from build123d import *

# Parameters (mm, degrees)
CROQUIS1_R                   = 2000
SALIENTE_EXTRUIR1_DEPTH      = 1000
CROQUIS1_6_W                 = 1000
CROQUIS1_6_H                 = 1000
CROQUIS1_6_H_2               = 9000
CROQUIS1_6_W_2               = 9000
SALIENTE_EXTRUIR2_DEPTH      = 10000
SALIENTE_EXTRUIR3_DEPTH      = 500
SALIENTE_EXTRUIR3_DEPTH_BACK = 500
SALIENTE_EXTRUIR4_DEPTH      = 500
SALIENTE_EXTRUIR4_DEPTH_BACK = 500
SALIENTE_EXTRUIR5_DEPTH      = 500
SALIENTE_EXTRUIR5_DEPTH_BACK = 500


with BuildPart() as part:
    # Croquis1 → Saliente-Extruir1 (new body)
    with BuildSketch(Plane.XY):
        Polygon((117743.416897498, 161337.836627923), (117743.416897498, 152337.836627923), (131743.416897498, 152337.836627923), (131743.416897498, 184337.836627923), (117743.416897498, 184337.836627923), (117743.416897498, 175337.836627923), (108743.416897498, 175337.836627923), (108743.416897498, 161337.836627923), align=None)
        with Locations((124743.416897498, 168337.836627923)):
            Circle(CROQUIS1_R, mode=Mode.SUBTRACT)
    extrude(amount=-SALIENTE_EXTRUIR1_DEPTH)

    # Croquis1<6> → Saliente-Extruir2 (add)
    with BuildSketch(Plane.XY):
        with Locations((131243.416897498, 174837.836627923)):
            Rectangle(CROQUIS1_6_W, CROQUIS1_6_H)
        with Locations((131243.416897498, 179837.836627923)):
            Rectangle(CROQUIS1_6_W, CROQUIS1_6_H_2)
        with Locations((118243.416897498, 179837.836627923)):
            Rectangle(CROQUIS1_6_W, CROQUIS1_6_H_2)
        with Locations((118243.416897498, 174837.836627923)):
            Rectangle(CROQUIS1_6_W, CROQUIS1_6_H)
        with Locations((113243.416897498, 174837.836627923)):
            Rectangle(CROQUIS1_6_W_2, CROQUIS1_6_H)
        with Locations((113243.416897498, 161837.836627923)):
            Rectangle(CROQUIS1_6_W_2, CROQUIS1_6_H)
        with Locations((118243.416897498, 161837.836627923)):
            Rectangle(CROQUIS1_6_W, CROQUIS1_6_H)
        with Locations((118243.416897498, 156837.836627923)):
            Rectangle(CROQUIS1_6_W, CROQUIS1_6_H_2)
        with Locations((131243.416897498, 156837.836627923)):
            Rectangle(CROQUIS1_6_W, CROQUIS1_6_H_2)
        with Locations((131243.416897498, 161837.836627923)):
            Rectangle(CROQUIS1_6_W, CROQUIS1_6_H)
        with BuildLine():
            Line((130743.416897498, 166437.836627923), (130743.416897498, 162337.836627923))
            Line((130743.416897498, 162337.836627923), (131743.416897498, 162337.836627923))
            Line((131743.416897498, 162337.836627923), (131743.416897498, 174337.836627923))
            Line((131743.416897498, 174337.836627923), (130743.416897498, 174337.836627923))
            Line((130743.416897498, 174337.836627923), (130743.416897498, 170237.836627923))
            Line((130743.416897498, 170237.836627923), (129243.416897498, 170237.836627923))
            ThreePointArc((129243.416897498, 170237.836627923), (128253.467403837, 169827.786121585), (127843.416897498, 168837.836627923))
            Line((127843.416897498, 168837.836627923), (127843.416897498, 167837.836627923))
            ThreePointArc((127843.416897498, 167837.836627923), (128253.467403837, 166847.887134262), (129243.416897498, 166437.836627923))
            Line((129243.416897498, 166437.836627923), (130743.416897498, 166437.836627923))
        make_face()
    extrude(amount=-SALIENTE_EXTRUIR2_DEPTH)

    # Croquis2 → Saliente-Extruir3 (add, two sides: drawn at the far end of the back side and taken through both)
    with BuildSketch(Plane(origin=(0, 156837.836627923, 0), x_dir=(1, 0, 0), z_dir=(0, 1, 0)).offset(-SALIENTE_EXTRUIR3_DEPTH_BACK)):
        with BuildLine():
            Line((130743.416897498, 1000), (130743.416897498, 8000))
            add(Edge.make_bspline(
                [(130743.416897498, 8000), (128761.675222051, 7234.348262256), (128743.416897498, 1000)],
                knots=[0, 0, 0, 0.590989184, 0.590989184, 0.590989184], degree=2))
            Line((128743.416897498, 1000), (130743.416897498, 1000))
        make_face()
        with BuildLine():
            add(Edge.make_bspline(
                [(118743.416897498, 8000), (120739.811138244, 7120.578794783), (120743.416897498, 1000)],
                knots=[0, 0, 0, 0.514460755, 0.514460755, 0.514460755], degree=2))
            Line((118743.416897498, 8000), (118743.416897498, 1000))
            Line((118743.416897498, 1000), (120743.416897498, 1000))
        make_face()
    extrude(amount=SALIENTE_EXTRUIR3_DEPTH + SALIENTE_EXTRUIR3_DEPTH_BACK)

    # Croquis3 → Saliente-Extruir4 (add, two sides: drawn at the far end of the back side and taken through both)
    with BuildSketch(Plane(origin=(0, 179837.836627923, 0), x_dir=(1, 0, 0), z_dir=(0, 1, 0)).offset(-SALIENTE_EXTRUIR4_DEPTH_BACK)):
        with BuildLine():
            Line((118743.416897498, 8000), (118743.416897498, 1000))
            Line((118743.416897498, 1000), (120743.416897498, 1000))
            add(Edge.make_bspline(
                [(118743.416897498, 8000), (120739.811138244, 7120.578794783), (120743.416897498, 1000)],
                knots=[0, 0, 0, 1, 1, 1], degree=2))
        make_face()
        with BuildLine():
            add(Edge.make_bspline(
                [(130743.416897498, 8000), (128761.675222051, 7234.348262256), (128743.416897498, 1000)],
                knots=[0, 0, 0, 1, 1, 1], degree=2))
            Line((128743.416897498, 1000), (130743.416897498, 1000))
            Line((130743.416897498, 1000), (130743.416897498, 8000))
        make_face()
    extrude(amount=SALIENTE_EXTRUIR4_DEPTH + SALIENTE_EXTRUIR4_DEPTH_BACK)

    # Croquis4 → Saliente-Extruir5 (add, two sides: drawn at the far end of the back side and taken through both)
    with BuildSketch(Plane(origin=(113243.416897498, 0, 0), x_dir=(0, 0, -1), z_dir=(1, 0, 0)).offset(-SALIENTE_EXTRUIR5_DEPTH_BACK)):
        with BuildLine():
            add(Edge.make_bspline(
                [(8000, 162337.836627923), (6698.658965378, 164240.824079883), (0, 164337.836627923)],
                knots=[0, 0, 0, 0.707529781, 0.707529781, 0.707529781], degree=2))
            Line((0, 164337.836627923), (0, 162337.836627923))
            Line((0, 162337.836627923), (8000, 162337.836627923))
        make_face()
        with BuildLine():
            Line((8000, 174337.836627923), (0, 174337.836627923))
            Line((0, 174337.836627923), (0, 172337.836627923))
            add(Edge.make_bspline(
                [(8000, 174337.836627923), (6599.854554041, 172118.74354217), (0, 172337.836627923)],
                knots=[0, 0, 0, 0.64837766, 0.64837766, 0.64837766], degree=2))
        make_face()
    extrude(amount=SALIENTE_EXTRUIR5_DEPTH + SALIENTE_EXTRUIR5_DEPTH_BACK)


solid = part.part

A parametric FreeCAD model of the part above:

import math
import FreeCAD as App
import Part
import Sketcher
Q = App.Units.Quantity

doc = App.newDocument("Part")
params = doc.addObject("Spreadsheet::Sheet", "Params")
for row, (alias, value) in enumerate([
    ("sketch1_diameter", "4000 mm"),
    ("sketch1_width", "14000 mm"),
    ("sketch1_width2", "9000 mm"),
    ("pad1_length", "1000 mm"),
    ("sketch2_radius", "1400 mm"),
    ("sketch2_width", "1000 mm"),
    ("sketch2_width2", "1500 mm"),
    ("sketch2_width3", "9000 mm"),
    ("sketch2_height", "14100 mm"),
    ("pad2_length", "10000 mm"),
    ("pad3_length", "500 mm"),
    ("pad3_length2", "500 mm"),
    ("pad4_length", "500 mm"),
    ("pad4_length2", "500 mm"),
    ("pad5_length", "500 mm"),
    ("pad5_length2", "500 mm"),
], start=1):
    params.set(f"A{row}", alias)
    params.set(f"B{row}", "=" + value)
    params.setAlias(f"B{row}", alias)

body = doc.addObject("PartDesign::Body", "Body")

# Sketch on XY plane
sketch1 = body.newObject("Sketcher::SketchObject", "Sketch")
sketch1.AttachmentSupport = (doc.getObject("XY_Plane"), [""])
sketch1.MapMode = "FlatFace"
sketch1.addGeometry([
    Part.LineSegment(App.Vector(117743.416897, 161337.836628, 0), App.Vector(117743.416897, 152337.836628, 0)),  # 0
    Part.LineSegment(App.Vector(117743.416897, 152337.836628, 0), App.Vector(131743.416897, 152337.836628, 0)),  # 1
    Part.LineSegment(App.Vector(131743.416897, 152337.836628, 0), App.Vector(131743.416897, 184337.836628, 0)),  # 2
    Part.LineSegment(App.Vector(131743.416897, 184337.836628, 0), App.Vector(117743.416897, 184337.836628, 0)),  # 3
    Part.LineSegment(App.Vector(117743.416897, 184337.836628, 0), App.Vector(117743.416897, 175337.836628, 0)),  # 4
    Part.LineSegment(App.Vector(117743.416897, 175337.836628, 0), App.Vector(108743.416897, 175337.836628, 0)),  # 5
    Part.LineSegment(App.Vector(108743.416897, 175337.836628, 0), App.Vector(108743.416897, 161337.836628, 0)),  # 6
    Part.LineSegment(App.Vector(108743.416897, 161337.836628, 0), App.Vector(117743.416897, 161337.836628, 0)),  # 7
    Part.Circle(App.Vector(124743.416897, 168337.836628, 0), App.Vector(0, 0, 1), 2000),  # 8
], False)
sketch1.addConstraint([
    Sketcher.Constraint("Coincident", 0, 2, 1, 1),
    Sketcher.Constraint("Coincident", 1, 2, 2, 1),
    Sketcher.Constraint("Coincident", 2, 2, 3, 1),
    Sketcher.Constraint("Coincident", 3, 2, 4, 1),
    Sketcher.Constraint("Coincident", 4, 2, 5, 1),
    Sketcher.Constraint("Coincident", 5, 2, 6, 1),
    Sketcher.Constraint("Coincident", 6, 2, 7, 1),
    Sketcher.Constraint("Coincident", 7, 2, 0, 1),
    Sketcher.Constraint("Vertical", 0),
    Sketcher.Constraint("Horizontal", 1),
    Sketcher.Constraint("Vertical", 2),
    Sketcher.Constraint("Horizontal", 3),
    Sketcher.Constraint("Vertical", 4),
    Sketcher.Constraint("Horizontal", 5),
    Sketcher.Constraint("Vertical", 6),
    Sketcher.Constraint("Horizontal", 7),
    Sketcher.Constraint("Vertical", 0, 2, 3, 2),
    Sketcher.Constraint("Equal", 7, 0),
    Sketcher.Constraint("Equal", 0, 4),
    Sketcher.Constraint("Equal", 3, 6),
    Sketcher.Constraint("Diameter", 8, Q("4000 mm")),
    Sketcher.Constraint("DistanceX", 1, 1, 1, 2, Q("14000 mm")),
    Sketcher.Constraint("DistanceX", 5, 2, 5, 1, Q("9000 mm")),
    Sketcher.Constraint("DistanceX", 0, 2, 8, 3, Q("7000 mm")),
    Sketcher.Constraint("DistanceY", 0, 2, 8, 3, Q("16000 mm")),
    Sketcher.Constraint("DistanceX", -1, 1, 8, 3, Q("124743.416897 mm")),
    Sketcher.Constraint("DistanceY", -1, 1, 8, 3, Q("168337.836628 mm")),
])
sketch1.setExpression("Constraints[20]", "Params.sketch1_diameter")
sketch1.setExpression("Constraints[21]", "Params.sketch1_width")
sketch1.setExpression("Constraints[22]", "Params.sketch1_width2")
pad1 = body.newObject("PartDesign::Pad", "Pad")
pad1.Profile = sketch1
pad1.setExpression("Length", "Params.pad1_length")
pad1.Reversed = True

# Sketch on XY plane
sketch2 = body.newObject("Sketcher::SketchObject", "Sketch001")
sketch2.AttachmentSupport = (doc.getObject("XY_Plane"), [""])
sketch2.MapMode = "FlatFace"
sketch2.addGeometry([
    Part.LineSegment(App.Vector(131743.416897, 184337.836628, 0), App.Vector(130743.416897, 184337.836628, 0)),  # 0
    Part.LineSegment(App.Vector(130743.416897, 184337.836628, 0), App.Vector(130743.416897, 170237.836628, 0)),  # 1
    Part.LineSegment(App.Vector(130743.416897, 170237.836628, 0), App.Vector(129243.416897, 170237.836628, 0)),  # 2
    Part.ArcOfCircle(Part.Circle(App.Vector(129243.416897, 168837.836628, 0), App.Vector(0, 0, 1), 1400), math.radians(90), math.radians(180)),  # 3
    Part.LineSegment(App.Vector(127843.416897, 168837.836628, 0), App.Vector(127843.416897, 167837.836628, 0)),  # 4
    Part.ArcOfCircle(Part.Circle(App.Vector(129243.416897, 167837.836628, 0), App.Vector(0, 0, 1), 1400), math.radians(-180), math.radians(-90)),  # 5
    Part.LineSegment(App.Vector(129243.416897, 166437.836628, 0), App.Vector(130743.416897, 166437.836628, 0)),  # 6
    Part.LineSegment(App.Vector(130743.416897, 166437.836628, 0), App.Vector(130743.416897, 152337.836628, 0)),  # 7
    Part.LineSegment(App.Vector(130743.416897, 152337.836628, 0), App.Vector(131743.416897, 152337.836628, 0)),  # 8
    Part.LineSegment(App.Vector(131743.416897, 152337.836628, 0), App.Vector(131743.416897, 184337.836628, 0)),  # 9
    Part.LineSegment(App.Vector(117743.416897, 184337.836628, 0), App.Vector(117743.416897, 175337.836628, 0)),  # 10
    Part.LineSegment(App.Vector(117743.416897, 175337.836628, 0), App.Vector(108743.416897, 175337.836628, 0)),  # 11
    Part.LineSegment(App.Vector(108743.416897, 175337.836628, 0), App.Vector(108743.416897, 174337.836628, 0)),  # 12
    Part.LineSegment(App.Vector(108743.416897, 174337.836628, 0), App.Vector(118743.416897, 174337.836628, 0)),  # 13
    Part.LineSegment(App.Vector(118743.416897, 174337.836628, 0), App.Vector(118743.416897, 184337.836628, 0)),  # 14
    Part.LineSegment(App.Vector(118743.416897, 184337.836628, 0), App.Vector(117743.416897, 184337.836628, 0)),  # 15
    Part.LineSegment(App.Vector(108743.416897, 162337.836628, 0), App.Vector(108743.416897, 161337.836628, 0)),  # 16
    Part.LineSegment(App.Vector(108743.416897, 161337.836628, 0), App.Vector(117743.416897, 161337.836628, 0)),  # 17
    Part.LineSegment(App.Vector(117743.416897, 161337.836628, 0), App.Vector(117743.416897, 152337.836628, 0)),  # 18
    Part.LineSegment(App.Vector(117743.416897, 152337.836628, 0), App.Vector(118743.416897, 152337.836628, 0)),  # 19
    Part.LineSegment(App.Vector(118743.416897, 152337.836628, 0), App.Vector(118743.416897, 162337.836628, 0)),  # 20
    Part.LineSegment(App.Vector(118743.416897, 162337.836628, 0), App.Vector(108743.416897, 162337.836628, 0)),  # 21
], False)
sketch2.addConstraint([
    Sketcher.Constraint("Coincident", 0, 2, 1, 1),
    Sketcher.Constraint("Coincident", 1, 2, 2, 1),
    Sketcher.Constraint("Coincident", 2, 2, 3, 1),
    Sketcher.Constraint("Coincident", 3, 2, 4, 1),
    Sketcher.Constraint("Coincident", 4, 2, 5, 1),
    Sketcher.Constraint("Coincident", 5, 2, 6, 1),
    Sketcher.Constraint("Coincident", 6, 2, 7, 1),
    Sketcher.Constraint("Coincident", 7, 2, 8, 1),
    Sketcher.Constraint("Coincident", 8, 2, 9, 1),
    Sketcher.Constraint("Coincident", 9, 2, 0, 1),
    Sketcher.Constraint("Coincident", 10, 2, 11, 1),
    Sketcher.Constraint("Coincident", 11, 2, 12, 1),
    Sketcher.Constraint("Coincident", 12, 2, 13, 1),
    Sketcher.Constraint("Coincident", 13, 2, 14, 1),
    Sketcher.Constraint("Coincident", 14, 2, 15, 1),
    Sketcher.Constraint("Coincident", 15, 2, 10, 1),
    Sketcher.Constraint("Coincident", 16, 2, 17, 1),
    Sketcher.Constraint("Coincident", 17, 2, 18, 1),
    Sketcher.Constraint("Coincident", 18, 2, 19, 1),
    Sketcher.Constraint("Coincident", 19, 2, 20, 1),
    Sketcher.Constraint("Coincident", 20, 2, 21, 1),
    Sketcher.Constraint("Coincident", 21, 2, 16, 1),
    Sketcher.Constraint("Horizontal", 0),
    Sketcher.Constraint("Vertical", 1),
    Sketcher.Constraint("Horizontal", 2),
    Sketcher.Constraint("Vertical", 4),
    Sketcher.Constraint("Horizontal", 6),
    Sketcher.Constraint("Vertical", 7),
    Sketcher.Constraint("Horizontal", 8),
    Sketcher.Constraint("Vertical", 9),
    Sketcher.Constraint("Vertical", 10),
    Sketcher.Constraint("Horizontal", 11),
    Sketcher.Constraint("Vertical", 12),
    Sketcher.Constraint("Horizontal", 13),
    Sketcher.Constraint("Vertical", 14),
    Sketcher.Constraint("Horizontal", 15),
    Sketcher.Constraint("Vertical", 16),
    Sketcher.Constraint("Horizontal", 17),
    Sketcher.Constraint("Vertical", 18),
    Sketcher.Constraint("Horizontal", 19),
    Sketcher.Constraint("Vertical", 20),
    Sketcher.Constraint("Horizontal", 21),
    Sketcher.Constraint("Equal", 3, 5),
    Sketcher.Constraint("Horizontal", 5, 3, 4, 2),
    Sketcher.Constraint("Horizontal", 9, 2, 14, 2),
    Sketcher.Constraint("Horizontal", 8, 2, 18, 2),
    Sketcher.Constraint("Vertical", 5, 3, 2, 2),
    Sketcher.Constraint("Vertical", 1, 2, 6, 2),
    Sketcher.Constraint("Vertical", 12, 2, 16, 2),
    Sketcher.Constraint("Vertical", 15, 2, 17, 2),
    Sketcher.Constraint("Vertical", 14, 2, 19, 2),
    Sketcher.Constraint("Equal", 2, 6),
    Sketcher.Constraint("Equal", 8, 15),
    Sketcher.Constraint("Equal", 19, 4),
    Sketcher.Constraint("Equal", 1, 7),
    Sketcher.Constraint("Equal", 17, 10),
    Sketcher.Constraint("Equal", 4, 12),
    Sketcher.Constraint("Equal", 12, 16),
    Sketcher.Constraint("Equal", 10, 18),
    Sketcher.Constraint("Radius", 3, Q("1400 mm")),
    Sketcher.Constraint("DistanceX", 0, 2, 0, 1, Q("1000 mm")),
    Sketcher.Constraint("DistanceX", 2, 2, 2, 1, Q("1500 mm")),
    Sketcher.Constraint("DistanceX", 11, 2, 11, 1, Q("9000 mm")),
    Sketcher.Constraint("DistanceY", 1, 2, 1, 1, Q("14100 mm")),
    Sketcher.Constraint("DistanceY", 9, 1, 9, 2, Q("32000 mm")),
    Sketcher.Constraint("DistanceX", 10, 2, 3, 2, Q("10100 mm")),
    Sketcher.Constraint("DistanceX", -1, 1, 3, 3, Q("129243.416897 mm")),
    Sketcher.Constraint("DistanceY", -1, 1, 3, 3, Q("168837.836628 mm")),
])
sketch2.setExpression("Constraints[59]", "Params.sketch2_radius")
sketch2.setExpression("Constraints[60]", "Params.sketch2_width")
sketch2.setExpression("Constraints[61]", "Params.sketch2_width2")
sketch2.setExpression("Constraints[62]", "Params.sketch2_width3")
sketch2.setExpression("Constraints[63]", "Params.sketch2_height")
pad2 = body.newObject("PartDesign::Pad", "Pad001")
pad2.Profile = sketch2
pad2.setExpression("Length", "Params.pad2_length")
pad2.Reversed = True

# Sketch on XZ plane
sketch3 = body.newObject("Sketcher::SketchObject", "Sketch002")
sketch3.AttachmentSupport = (doc.getObject("XZ_Plane"), [""])
sketch3.MapMode = "FlatFace"
sketch3.AttachmentOffset = App.Placement(App.Vector(0, 0, -156837.836628), App.Rotation())
sketch3.addGeometry([
    Part.LineSegment(App.Vector(130743.416897, -1000, 0), App.Vector(130743.416897, -8000, 0)),  # 0
    Part.BSplineCurve([App.Vector(130743.416897, -8000, 0), App.Vector(128761.675222, -7234.348262, 0), App.Vector(128743.416897, -1000, 0)], [3, 3], [0, 0.590989184], False, 2, [1, 1, 1], False),  # 1
    Part.LineSegment(App.Vector(128743.416897, -1000, 0), App.Vector(130743.416897, -1000, 0)),  # 2
    Part.BSplineCurve([App.Vector(118743.416897, -8000, 0), App.Vector(120739.811138, -7120.578795, 0), App.Vector(120743.416897, -1000, 0)], [3, 3], [0, 0.514460755], False, 2, [1, 1, 1], False),  # 3
    Part.LineSegment(App.Vector(118743.416897, -8000, 0), App.Vector(118743.416897, -1000, 0)),  # 4
    Part.LineSegment(App.Vector(118743.416897, -1000, 0), App.Vector(120743.416897, -1000, 0)),  # 5
], False)
sketch3.addConstraint([
    Sketcher.Constraint("Block", 1),
    Sketcher.Constraint("Block", 3),
    Sketcher.Constraint("Coincident", 0, 2, 1, 1),
    Sketcher.Constraint("Coincident", 1, 2, 2, 1),
    Sketcher.Constraint("Coincident", 2, 2, 0, 1),
    Sketcher.Constraint("Coincident", 3, 1, 4, 1),
    Sketcher.Constraint("Coincident", 4, 2, 5, 1),
    Sketcher.Constraint("Coincident", 5, 2, 3, 2),
    Sketcher.Constraint("Vertical", 0),
    Sketcher.Constraint("Horizontal", 2),
    Sketcher.Constraint("Vertical", 4),
    Sketcher.Constraint("Horizontal", 5),
])
pad3 = body.newObject("PartDesign::Pad", "Pad002")
pad3.Profile = sketch3
pad3.Type = "TwoLengths"
pad3.setExpression("Length", "Params.pad3_length")
pad3.setExpression("Length2", "Params.pad3_length2")
pad3.Reversed = True

# Sketch on XZ plane
sketch4 = body.newObject("Sketcher::SketchObject", "Sketch003")
sketch4.AttachmentSupport = (doc.getObject("XZ_Plane"), [""])
sketch4.MapMode = "FlatFace"
sketch4.AttachmentOffset = App.Placement(App.Vector(0, 0, -179837.836628), App.Rotation())
sketch4.addGeometry([
    Part.LineSegment(App.Vector(118743.416897, -8000, 0), App.Vector(118743.416897, -1000, 0)),  # 0
    Part.LineSegment(App.Vector(118743.416897, -1000, 0), App.Vector(120743.416897, -1000, 0)),  # 1
    Part.BSplineCurve([App.Vector(118743.416897, -8000, 0), App.Vector(120739.811138, -7120.578795, 0), App.Vector(120743.416897, -1000, 0)], [3, 3], [0, 1], False, 2, [1, 1, 1], False),  # 2
    Part.BSplineCurve([App.Vector(130743.416897, -8000, 0), App.Vector(128761.675222, -7234.348262, 0), App.Vector(128743.416897, -1000, 0)], [3, 3], [0, 1], False, 2, [1, 1, 1], False),  # 3
    Part.LineSegment(App.Vector(128743.416897, -1000, 0), App.Vector(130743.416897, -1000, 0)),  # 4
    Part.LineSegment(App.Vector(130743.416897, -1000, 0), App.Vector(130743.416897, -8000, 0)),  # 5
], False)
sketch4.addConstraint([
    Sketcher.Constraint("Block", 2),
    Sketcher.Constraint("Block", 3),
    Sketcher.Constraint("Coincident", 0, 2, 1, 1),
    Sketcher.Constraint("Coincident", 1, 2, 2, 2),
    Sketcher.Constraint("Coincident", 2, 1, 0, 1),
    Sketcher.Constraint("Coincident", 3, 2, 4, 1),
    Sketcher.Constraint("Coincident", 4, 2, 5, 1),
    Sketcher.Constraint("Coincident", 5, 2, 3, 1),
    Sketcher.Constraint("Vertical", 0),
    Sketcher.Constraint("Horizontal", 1),
    Sketcher.Constraint("Horizontal", 4),
    Sketcher.Constraint("Vertical", 5),
])
pad4 = body.newObject("PartDesign::Pad", "Pad003")
pad4.Profile = sketch4
pad4.Type = "TwoLengths"
pad4.setExpression("Length", "Params.pad4_length")
pad4.setExpression("Length2", "Params.pad4_length2")
pad4.Reversed = True

# Sketch on YZ plane
sketch5 = body.newObject("Sketcher::SketchObject", "Sketch004")
sketch5.AttachmentSupport = (doc.getObject("YZ_Plane"), [""])
sketch5.MapMode = "FlatFace"
sketch5.AttachmentOffset = App.Placement(App.Vector(0, 0, 113243.416897), App.Rotation())
sketch5.addGeometry([
    Part.BSplineCurve([App.Vector(162337.836628, -8000, 0), App.Vector(164240.82408, -6698.658965, 0), App.Vector(164337.836628, 0, 0)], [3, 3], [0, 0.707529781], False, 2, [1, 1, 1], False),  # 0
    Part.LineSegment(App.Vector(164337.836628, 0, 0), App.Vector(162337.836628, 0, 0)),  # 1
    Part.LineSegment(App.Vector(162337.836628, 0, 0), App.Vector(162337.836628, -8000, 0)),  # 2
    Part.LineSegment(App.Vector(174337.836628, -8000, 0), App.Vector(174337.836628, 0, 0)),  # 3
    Part.LineSegment(App.Vector(174337.836628, 0, 0), App.Vector(172337.836628, 0, 0)),  # 4
    Part.BSplineCurve([App.Vector(174337.836628, -8000, 0), App.Vector(172118.743542, -6599.854554, 0), App.Vector(172337.836628, 0, 0)], [3, 3], [0, 0.64837766], False, 2, [1, 1, 1], False),  # 5
], False)
sketch5.addConstraint([
    Sketcher.Constraint("Block", 0),
    Sketcher.Constraint("Block", 5),
    Sketcher.Constraint("Coincident", 0, 2, 1, 1),
    Sketcher.Constraint("Coincident", 1, 2, 2, 1),
    Sketcher.Constraint("Coincident", 2, 2, 0, 1),
    Sketcher.Constraint("Coincident", 3, 2, 4, 1),
    Sketcher.Constraint("Coincident", 4, 2, 5, 2),
    Sketcher.Constraint("Coincident", 5, 1, 3, 1),
    Sketcher.Constraint("Horizontal", 1),
    Sketcher.Constraint("Vertical", 2),
    Sketcher.Constraint("Vertical", 3),
    Sketcher.Constraint("Horizontal", 4),
])
pad5 = body.newObject("PartDesign::Pad", "Pad004")
pad5.Profile = sketch5
pad5.Type = "TwoLengths"
pad5.setExpression("Length", "Params.pad5_length")
pad5.setExpression("Length2", "Params.pad5_length2")

doc.recompute()
